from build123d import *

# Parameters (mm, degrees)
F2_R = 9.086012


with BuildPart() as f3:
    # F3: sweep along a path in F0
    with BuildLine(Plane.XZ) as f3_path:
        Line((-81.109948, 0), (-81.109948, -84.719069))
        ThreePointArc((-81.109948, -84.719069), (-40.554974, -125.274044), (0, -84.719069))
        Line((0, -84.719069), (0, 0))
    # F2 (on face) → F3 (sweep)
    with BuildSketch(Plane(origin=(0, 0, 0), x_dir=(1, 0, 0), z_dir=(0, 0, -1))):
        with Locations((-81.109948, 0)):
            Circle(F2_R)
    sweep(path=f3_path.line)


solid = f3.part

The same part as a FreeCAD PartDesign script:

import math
import FreeCAD as App
import Part
import Sketcher

doc = App.newDocument("Part")
body = doc.addObject("PartDesign::Body", "Body")

sketch1 = body.newObject("Sketcher::SketchObject", "Sketch")
sketch1.AttachmentSupport = (doc.getObject("XY_Plane"), [""])
sketch1.MapMode = "FlatFace"
sketch1.addGeometry(Part.Circle(App.Vector(-81, 0, 0), App.Vector(0, 0, 1), 9), False)
sketch1.addConstraint([
    Sketcher.Constraint("PointOnObject", 0, 3, -1),
    Sketcher.Constraint("Diameter", 0, 18.172024),
    Sketcher.Constraint("DistanceX", 0, 3, -1, 1, 81.109948),
])

sketch2 = body.newObject("Sketcher::SketchObject", "Sketch001")
sketch2.AttachmentSupport = (doc.getObject("XZ_Plane"), [""])
sketch2.MapMode = "FlatFace"
sketch2.addGeometry([
    Part.LineSegment(App.Vector(-81, 0, 0), App.Vector(-81, -85, 0)),
    Part.ArcOfCircle(Part.Circle(App.Vector(-41, -85, 0), App.Vector(0, 0, 1), 41), math.radians(180), math.radians(360)),
    Part.LineSegment(App.Vector(0, -85, 0), App.Vector(0, 0, 0)),
], False)
sketch2.addConstraint([
    Sketcher.Constraint("Tangent", 0, 2, 1, 1),
    Sketcher.Constraint("Tangent", 1, 2, 2, 1),
    Sketcher.Constraint("Vertical", 0),
    Sketcher.Constraint("Vertical", 2),
    Sketcher.Constraint("Coincident", 2, 2, -1, 1),
    Sketcher.Constraint("PointOnObject", 0, 1, -1),
    Sketcher.Constraint("Radius", 1, 40.554974),
    Sketcher.Constraint("DistanceY", 0, 2, 0, 1, 84.719069),
])
doc.recompute()

additivepipe = body.newObject("PartDesign::AdditivePipe", "AdditivePipe")
additivepipe.Profile = sketch1
additivepipe.Spine = (sketch2, ["Edge1", "Edge2", "Edge3"])

doc.recompute()
